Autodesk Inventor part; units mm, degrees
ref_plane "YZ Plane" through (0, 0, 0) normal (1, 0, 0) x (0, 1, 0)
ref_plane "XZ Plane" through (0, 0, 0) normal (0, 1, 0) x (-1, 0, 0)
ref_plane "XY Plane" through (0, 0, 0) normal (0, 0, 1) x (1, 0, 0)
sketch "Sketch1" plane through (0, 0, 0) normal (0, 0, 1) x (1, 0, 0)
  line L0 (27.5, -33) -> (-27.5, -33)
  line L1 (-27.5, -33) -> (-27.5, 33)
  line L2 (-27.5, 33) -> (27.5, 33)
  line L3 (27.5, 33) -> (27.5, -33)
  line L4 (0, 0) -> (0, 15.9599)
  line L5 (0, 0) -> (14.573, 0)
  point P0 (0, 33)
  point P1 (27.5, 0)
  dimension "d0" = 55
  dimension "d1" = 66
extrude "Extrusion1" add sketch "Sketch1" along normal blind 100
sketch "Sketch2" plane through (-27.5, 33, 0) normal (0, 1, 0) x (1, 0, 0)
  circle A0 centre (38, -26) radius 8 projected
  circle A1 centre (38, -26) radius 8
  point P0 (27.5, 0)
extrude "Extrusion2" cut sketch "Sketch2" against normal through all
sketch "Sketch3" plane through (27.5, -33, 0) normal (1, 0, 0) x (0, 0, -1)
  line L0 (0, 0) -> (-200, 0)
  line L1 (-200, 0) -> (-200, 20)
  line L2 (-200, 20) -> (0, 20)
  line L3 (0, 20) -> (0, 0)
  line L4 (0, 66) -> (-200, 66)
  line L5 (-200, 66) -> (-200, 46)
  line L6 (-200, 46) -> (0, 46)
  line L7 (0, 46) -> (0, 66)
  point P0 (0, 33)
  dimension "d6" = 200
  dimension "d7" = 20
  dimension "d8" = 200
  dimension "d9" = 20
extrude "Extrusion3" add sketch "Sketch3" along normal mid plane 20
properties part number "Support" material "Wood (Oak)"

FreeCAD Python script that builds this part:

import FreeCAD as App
import Part
import Sketcher
from FreeCAD import Vector
Q = App.Units.Quantity

doc = App.newDocument("Part")
body = doc.addObject("PartDesign::Body", "Body")

# Sketch on XY plane
sketch1 = body.newObject("Sketcher::SketchObject", "Sketch")
sketch1.AttachmentSupport = (doc.getObject("XY_Plane"), [""])
sketch1.MapMode = "FlatFace"
sketch1.addGeometry([
    Part.LineSegment(Vector(-27.5, -33, 0), Vector(27.5, -33, 0)),
    Part.LineSegment(Vector(27.5, -33, 0), Vector(27.5, 33, 0)),
    Part.LineSegment(Vector(27.5, 33, 0), Vector(-27.5, 33, 0)),
    Part.LineSegment(Vector(-27.5, 33, 0), Vector(-27.5, -33, 0)),
], False)
sketch1.addConstraint([
    Sketcher.Constraint("Coincident", 0, 2, 1, 1),
    Sketcher.Constraint("Coincident", 1, 2, 2, 1),
    Sketcher.Constraint("Coincident", 2, 2, 3, 1),
    Sketcher.Constraint("Coincident", 3, 2, 0, 1),
    Sketcher.Constraint("Horizontal", 0),
    Sketcher.Constraint("Vertical", 1),
    Sketcher.Constraint("Horizontal", 2),
    Sketcher.Constraint("Vertical", 3),
    Sketcher.Constraint("Symmetric", 0, 2, 2, 2, -1, 1),
    Sketcher.Constraint("DistanceX", 0, 1, 0, 2, Q("55 mm")),
    Sketcher.Constraint("DistanceY", 1, 1, 1, 2, Q("66 mm")),
])
pad1 = body.newObject("PartDesign::Pad", "Pad")
pad1.Profile = sketch1
pad1.Length = 100

# Sketch on XZ plane
sketch2 = body.newObject("Sketcher::SketchObject", "Sketch001")
sketch2.AttachmentSupport = (doc.getObject("XZ_Plane"), [""])
sketch2.MapMode = "FlatFace"
sketch2.AttachmentOffset = App.Placement(Vector(0, 0, -33), App.Rotation())
sketch2.addGeometry(Part.Circle(Vector(10.5, 26, 0), Vector(0, 0, 1), 8), False)
sketch2.addConstraint([
    Sketcher.Constraint("Diameter", 0, Q("16 mm")),
    Sketcher.Constraint("DistanceY", -1, 1, 0, 3, Q("26 mm")),
    Sketcher.Constraint("DistanceX", -1, 1, 0, 3, Q("10.5 mm")),
])
pocket1 = body.newObject("PartDesign::Pocket", "Pocket")
pocket1.Profile = sketch2
pocket1.Type = "ThroughAll"
pocket1.Reversed = True

# Sketch on YZ plane
sketch3 = body.newObject("Sketcher::SketchObject", "Sketch002")
sketch3.AttachmentSupport = (doc.getObject("YZ_Plane"), [""])
sketch3.MapMode = "FlatFace"
sketch3.AttachmentOffset = App.Placement(Vector(0, 0, 27.5), App.Rotation())
sketch3.addGeometry([
    Part.LineSegment(Vector(-33, 200, 0), Vector(-33, 0, 0)),  # 0
    Part.LineSegment(Vector(-33, 0, 0), Vector(-13, 0, 0)),  # 1
    Part.LineSegment(Vector(-13, 0, 0), Vector(-13, 200, 0)),  # 2
    Part.LineSegment(Vector(-13, 200, 0), Vector(-33, 200, 0)),  # 3
    Part.LineSegment(Vector(13, 0, 0), Vector(33, 0, 0)),  # 4
    Part.LineSegment(Vector(33, 0, 0), Vector(33, 200, 0)),  # 5
    Part.LineSegment(Vector(33, 200, 0), Vector(13, 200, 0)),  # 6
    Part.LineSegment(Vector(13, 200, 0), Vector(13, 0, 0)),  # 7
], False)
sketch3.addConstraint([
    Sketcher.Constraint("Coincident", 0, 2, 1, 1),
    Sketcher.Constraint("Coincident", 1, 2, 2, 1),
    Sketcher.Constraint("Coincident", 2, 2, 3, 1),
    Sketcher.Constraint("Coincident", 3, 2, 0, 1),
    Sketcher.Constraint("Coincident", 4, 2, 5, 1),
    Sketcher.Constraint("Coincident", 5, 2, 6, 1),
    Sketcher.Constraint("Coincident", 6, 2, 7, 1),
    Sketcher.Constraint("Coincident", 7, 2, 4, 1),
    Sketcher.Constraint("Vertical", 0),
    Sketcher.Constraint("Horizontal", 1),
    Sketcher.Constraint("Vertical", 2),
    Sketcher.Constraint("Horizontal", 3),
    Sketcher.Constraint("Horizontal", 4),
    Sketcher.Constraint("Vertical", 5),
    Sketcher.Constraint("Horizontal", 6),
    Sketcher.Constraint("Vertical", 7),
    Sketcher.Constraint("Symmetric", 0, 2, 4, 2, -1, 1),
    Sketcher.Constraint("Symmetric", 2, 2, 6, 2, -2),
    Sketcher.Constraint("PointOnObject", 0, 2, -1),
    Sketcher.Constraint("DistanceX", 1, 1, 1, 2, Q("20 mm")),
    Sketcher.Constraint("DistanceY", 0, 2, 0, 1, Q("200 mm")),
    Sketcher.Constraint("DistanceX", 0, 2, -1, 1, Q("33 mm")),
])
pad2 = body.newObject("PartDesign::Pad", "Pad001")
pad2.Profile = sketch3
pad2.Length = 20
pad2.Midplane = True

doc.recompute()
